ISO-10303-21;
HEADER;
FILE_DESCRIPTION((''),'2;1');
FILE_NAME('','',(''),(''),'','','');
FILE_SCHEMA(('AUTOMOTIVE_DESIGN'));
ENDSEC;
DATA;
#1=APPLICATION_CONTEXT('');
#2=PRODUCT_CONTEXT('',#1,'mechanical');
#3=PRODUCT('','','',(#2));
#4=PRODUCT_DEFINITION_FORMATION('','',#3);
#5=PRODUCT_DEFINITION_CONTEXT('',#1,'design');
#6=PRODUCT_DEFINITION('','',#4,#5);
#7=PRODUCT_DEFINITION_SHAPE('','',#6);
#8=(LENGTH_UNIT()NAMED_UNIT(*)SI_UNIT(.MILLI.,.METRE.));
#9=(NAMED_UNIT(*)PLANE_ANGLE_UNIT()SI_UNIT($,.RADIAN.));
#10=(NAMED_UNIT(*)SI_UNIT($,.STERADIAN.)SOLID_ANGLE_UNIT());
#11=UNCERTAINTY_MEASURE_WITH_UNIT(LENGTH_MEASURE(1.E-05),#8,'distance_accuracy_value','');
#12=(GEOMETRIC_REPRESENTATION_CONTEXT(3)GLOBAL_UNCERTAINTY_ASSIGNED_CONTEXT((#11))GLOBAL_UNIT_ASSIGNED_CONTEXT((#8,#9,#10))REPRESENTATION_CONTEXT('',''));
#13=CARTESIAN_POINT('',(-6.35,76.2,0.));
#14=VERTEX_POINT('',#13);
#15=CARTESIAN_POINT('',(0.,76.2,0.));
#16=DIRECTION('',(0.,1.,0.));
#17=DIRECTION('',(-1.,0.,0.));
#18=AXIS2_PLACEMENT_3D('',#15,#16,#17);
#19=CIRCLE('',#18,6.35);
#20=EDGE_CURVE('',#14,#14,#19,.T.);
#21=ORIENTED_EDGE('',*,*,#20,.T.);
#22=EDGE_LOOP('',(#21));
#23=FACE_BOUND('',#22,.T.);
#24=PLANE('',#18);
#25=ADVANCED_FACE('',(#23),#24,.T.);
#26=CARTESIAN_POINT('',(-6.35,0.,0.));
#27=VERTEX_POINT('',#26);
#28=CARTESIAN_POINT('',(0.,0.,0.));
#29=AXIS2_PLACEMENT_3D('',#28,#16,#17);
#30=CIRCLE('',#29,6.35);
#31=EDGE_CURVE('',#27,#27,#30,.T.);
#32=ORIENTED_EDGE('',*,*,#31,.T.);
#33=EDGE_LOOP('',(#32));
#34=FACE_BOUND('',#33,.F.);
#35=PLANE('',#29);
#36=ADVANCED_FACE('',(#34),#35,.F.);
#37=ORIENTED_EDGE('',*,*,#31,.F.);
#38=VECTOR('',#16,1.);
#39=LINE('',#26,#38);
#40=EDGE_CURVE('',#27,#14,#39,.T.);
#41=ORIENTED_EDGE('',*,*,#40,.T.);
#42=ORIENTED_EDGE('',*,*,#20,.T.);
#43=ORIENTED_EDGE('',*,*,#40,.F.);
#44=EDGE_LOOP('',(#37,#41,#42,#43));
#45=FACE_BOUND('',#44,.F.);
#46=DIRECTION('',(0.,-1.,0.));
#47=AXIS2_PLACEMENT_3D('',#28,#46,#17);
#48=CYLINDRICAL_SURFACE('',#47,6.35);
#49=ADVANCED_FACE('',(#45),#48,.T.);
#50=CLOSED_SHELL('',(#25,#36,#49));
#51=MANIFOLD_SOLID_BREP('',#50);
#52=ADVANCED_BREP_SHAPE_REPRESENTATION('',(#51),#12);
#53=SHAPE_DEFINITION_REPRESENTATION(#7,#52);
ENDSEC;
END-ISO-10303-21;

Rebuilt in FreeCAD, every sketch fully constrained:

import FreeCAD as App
import Part
import Sketcher
Q = App.Units.Quantity

doc = App.newDocument("Part")
params = doc.addObject("Spreadsheet::Sheet", "Params")
for row, (alias, value) in enumerate([
    ("sketch1_diameter", "0.5 in"),
    ("pad1_length", "3 in"),
], start=1):
    params.set(f"A{row}", alias)
    params.set(f"B{row}", "=" + value)
    params.setAlias(f"B{row}", alias)

body = doc.addObject("PartDesign::Body", "Body")

sketch1 = body.newObject("Sketcher::SketchObject", "Sketch")
sketch1.AttachmentSupport = (doc.getObject("XZ_Plane"), [""])
sketch1.MapMode = "FlatFace"
sketch1.addGeometry(Part.Circle(App.Vector(0, 0, 0), App.Vector(0, 0, 1), 6.35), False)
sketch1.addConstraint([
    Sketcher.Constraint("Coincident", 0, 3, -1, 1),
    Sketcher.Constraint("Diameter", 0, Q("0.5 in")),
])
sketch1.setExpression("Constraints[1]", "Params.sketch1_diameter")
pad1 = body.newObject("PartDesign::Pad", "Pad")
pad1.Profile = sketch1
pad1.setExpression("Length", "Params.pad1_length")
pad1.Reversed = True

doc.recompute()
